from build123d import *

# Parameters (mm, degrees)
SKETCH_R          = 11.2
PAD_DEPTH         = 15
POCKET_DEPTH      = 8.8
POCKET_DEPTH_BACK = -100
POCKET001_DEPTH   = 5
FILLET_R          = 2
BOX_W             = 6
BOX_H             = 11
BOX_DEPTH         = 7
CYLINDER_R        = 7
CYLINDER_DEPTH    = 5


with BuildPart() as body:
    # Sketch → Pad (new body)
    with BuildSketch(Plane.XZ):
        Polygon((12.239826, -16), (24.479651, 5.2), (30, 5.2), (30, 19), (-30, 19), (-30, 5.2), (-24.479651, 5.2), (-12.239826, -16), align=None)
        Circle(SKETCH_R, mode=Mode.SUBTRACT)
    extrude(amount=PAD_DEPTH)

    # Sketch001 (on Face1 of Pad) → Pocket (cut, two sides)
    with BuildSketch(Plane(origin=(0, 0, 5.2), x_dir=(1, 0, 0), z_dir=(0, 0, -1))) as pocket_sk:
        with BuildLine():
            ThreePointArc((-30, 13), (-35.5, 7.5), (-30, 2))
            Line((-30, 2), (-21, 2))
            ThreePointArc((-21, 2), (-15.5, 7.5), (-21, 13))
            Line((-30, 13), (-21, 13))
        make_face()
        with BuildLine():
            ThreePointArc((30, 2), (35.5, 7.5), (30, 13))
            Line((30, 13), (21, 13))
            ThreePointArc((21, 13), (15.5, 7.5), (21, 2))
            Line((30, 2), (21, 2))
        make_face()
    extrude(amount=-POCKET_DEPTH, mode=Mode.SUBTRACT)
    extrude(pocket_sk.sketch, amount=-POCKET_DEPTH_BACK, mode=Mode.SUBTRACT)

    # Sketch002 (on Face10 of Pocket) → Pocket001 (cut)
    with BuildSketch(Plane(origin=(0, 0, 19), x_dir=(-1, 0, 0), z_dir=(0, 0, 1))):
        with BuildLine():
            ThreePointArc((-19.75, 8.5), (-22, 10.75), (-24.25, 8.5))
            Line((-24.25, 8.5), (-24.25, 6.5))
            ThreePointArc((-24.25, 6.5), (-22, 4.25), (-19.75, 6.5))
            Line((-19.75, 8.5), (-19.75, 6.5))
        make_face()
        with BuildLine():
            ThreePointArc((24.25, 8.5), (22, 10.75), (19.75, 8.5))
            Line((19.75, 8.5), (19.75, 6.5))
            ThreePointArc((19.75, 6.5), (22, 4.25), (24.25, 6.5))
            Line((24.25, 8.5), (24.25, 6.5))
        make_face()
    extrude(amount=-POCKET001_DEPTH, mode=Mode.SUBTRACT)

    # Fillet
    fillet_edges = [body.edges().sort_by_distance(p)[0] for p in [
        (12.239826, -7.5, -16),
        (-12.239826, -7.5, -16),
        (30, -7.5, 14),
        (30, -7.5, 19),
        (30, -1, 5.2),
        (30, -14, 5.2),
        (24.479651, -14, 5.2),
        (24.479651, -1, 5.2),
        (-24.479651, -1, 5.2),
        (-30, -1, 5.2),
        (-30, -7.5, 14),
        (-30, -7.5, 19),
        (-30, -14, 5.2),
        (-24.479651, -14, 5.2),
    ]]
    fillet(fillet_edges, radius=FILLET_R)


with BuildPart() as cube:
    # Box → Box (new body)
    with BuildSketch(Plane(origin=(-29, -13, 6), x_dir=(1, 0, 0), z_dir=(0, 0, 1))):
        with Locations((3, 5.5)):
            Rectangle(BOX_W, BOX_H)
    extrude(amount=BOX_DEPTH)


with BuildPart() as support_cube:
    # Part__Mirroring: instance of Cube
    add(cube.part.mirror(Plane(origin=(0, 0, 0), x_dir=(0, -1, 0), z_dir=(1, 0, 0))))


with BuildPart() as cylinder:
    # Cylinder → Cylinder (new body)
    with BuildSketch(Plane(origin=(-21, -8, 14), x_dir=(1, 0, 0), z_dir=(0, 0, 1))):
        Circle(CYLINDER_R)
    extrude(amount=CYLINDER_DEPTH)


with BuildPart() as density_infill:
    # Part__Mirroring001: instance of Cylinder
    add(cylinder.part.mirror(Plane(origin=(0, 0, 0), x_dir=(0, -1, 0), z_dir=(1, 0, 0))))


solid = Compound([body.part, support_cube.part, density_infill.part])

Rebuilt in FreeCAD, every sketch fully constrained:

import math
import FreeCAD as App
import Part
import Sketcher

V = App.Vector
Q = App.Units.Quantity


def edges_at(feature, points):
    """Names of the edges that pass closest to the given points."""
    edges = feature.Shape.Edges
    near = lambda p: min(range(len(edges)), key=lambda i: edges[i].distToShape(Part.Vertex(*p))[0])
    return sorted({f"Edge{near(p) + 1}" for p in points})


def add_polygon(sketch, points):
    """Adds a closed chain of lines whose ends are joined by coincident constraints."""
    first, n = sketch.GeometryCount, len(points)
    for a, b in zip(points, points[1:] + points[:1]):
        sketch.addGeometry(Part.LineSegment(App.Vector(*a, 0), App.Vector(*b, 0)), False)
    for i in range(n):
        sketch.addConstraint(Sketcher.Constraint("Coincident", first + i, 2, first + (i + 1) % n, 1))

doc = App.newDocument("Part")
body = doc.addObject("PartDesign::Body", "Body")

# Sketch on XZ plane
sketch1 = body.newObject("Sketcher::SketchObject", "Sketch")
sketch1.AttachmentSupport = (doc.getObject("XZ_Plane"), [""])
sketch1.MapMode = "FlatFace"
add_polygon(sketch1, [(12, -16), (24, 5), (30, 5), (30, 19), (-30, 19), (-30, 5), (-24, 5), (-12, -16)])  # lines 0-7
sketch1.addGeometry(Part.Circle(V(0, 0, 0), V(0, 0, 1), 11), False)  # 8
sketch1.addConstraint(Sketcher.Constraint("Horizontal", 1))
sketch1.addConstraint(Sketcher.Constraint("Vertical", 2))
sketch1.addConstraint(Sketcher.Constraint("Horizontal", 3))
sketch1.addConstraint(Sketcher.Constraint("Vertical", 4))
sketch1.addConstraint(Sketcher.Constraint("Horizontal", 5))
sketch1.addConstraint(Sketcher.Constraint("Horizontal", 7))
sketch1.addConstraint(Sketcher.Constraint("Coincident", 8, 3, -1, 1))
sketch1.addConstraint(Sketcher.Constraint("Symmetric", 1, 2, 4, 2, -2))
sketch1.addConstraint(Sketcher.Constraint("Equal", 1, 5))
sketch1.addConstraint(Sketcher.Constraint("Equal", 0, 6))
sketch1.addConstraint(Sketcher.Constraint("Diameter", 8, 22.4))
sketch1.addConstraint(Sketcher.Constraint("DistanceX", 3, 2, 3, 1, 60.0))
sketch1.addConstraint(Sketcher.Constraint("Angle", 0, Q("60.000001 deg")))
sketch1.addConstraint(Sketcher.Constraint("DistanceY", 2, 1, 2, 2, 13.8))
sketch1.addConstraint(Sketcher.Constraint("DistanceY", -1, 1, 2, 2, 19.0))
sketch1.addConstraint(Sketcher.Constraint("DistanceY", 6, 2, -1, 1, 16.0))
sketch1.addConstraint(Sketcher.Constraint("DistanceX", 1, 1, 1, 2, 5.520349))
pad1 = body.newObject("PartDesign::Pad", "Pad")
pad1.Profile = sketch1
pad1.Length = 15

# Sketch on XY plane
sketch2 = body.newObject("Sketcher::SketchObject", "Sketch001")
sketch2.AttachmentSupport = (doc.getObject("XY_Plane"), [""])
sketch2.MapMode = "FlatFace"
sketch2.AttachmentOffset = App.Placement(V(0, 0, 5.2), App.Rotation())
sketch2.addGeometry(Part.ArcOfCircle(Part.Circle(V(-30, -8, 0), V(0, 0, 1), 6), math.radians(90), math.radians(270)), False)
sketch2.addGeometry(Part.LineSegment(V(-30, -2, 0), V(-21, -2, 0)), False)
sketch2.addGeometry(Part.ArcOfCircle(Part.Circle(V(-21, -8, 0), V(0, 0, 1), 6), math.radians(-90), math.radians(90)), False)
sketch2.addGeometry(Part.LineSegment(V(-21, -13, 0), V(-30, -13, 0)), False)
sketch2.addGeometry(Part.ArcOfCircle(Part.Circle(V(30, -8, 0), V(0, 0, 1), 6), math.radians(-90), math.radians(90)), False)
sketch2.addGeometry(Part.LineSegment(V(30, -13, 0), V(21, -13, 0)), False)
sketch2.addGeometry(Part.ArcOfCircle(Part.Circle(V(21, -8, 0), V(0, 0, 1), 6), math.radians(90), math.radians(270)), False)
sketch2.addGeometry(Part.LineSegment(V(21, -2, 0), V(30, -2, 0)), False)
sketch2.addConstraint(Sketcher.Constraint("Tangent", 0, 1, 1, 1))
sketch2.addConstraint(Sketcher.Constraint("Tangent", 1, 2, 2, 2))
sketch2.addConstraint(Sketcher.Constraint("Tangent", 2, 1, 3, 1))
sketch2.addConstraint(Sketcher.Constraint("Tangent", 3, 2, 0, 2))
sketch2.addConstraint(Sketcher.Constraint("Tangent", 4, 1, 5, 1))
sketch2.addConstraint(Sketcher.Constraint("Tangent", 5, 2, 6, 2))
sketch2.addConstraint(Sketcher.Constraint("Tangent", 6, 1, 7, 1))
sketch2.addConstraint(Sketcher.Constraint("Tangent", 7, 2, 4, 2))
sketch2.addConstraint(Sketcher.Constraint("Horizontal", 1))
sketch2.addConstraint(Sketcher.Constraint("Horizontal", 3))
sketch2.addConstraint(Sketcher.Constraint("Horizontal", 5))
sketch2.addConstraint(Sketcher.Constraint("Horizontal", 7))
sketch2.addConstraint(Sketcher.Constraint("Equal", 2, 4))
sketch2.addConstraint(Sketcher.Constraint("Symmetric", 0, 3, 4, 3, -2))
sketch2.addConstraint(Sketcher.Constraint("Equal", 3, 5))
sketch2.addConstraint(Sketcher.Constraint("Radius", 0, 5.5))
sketch2.addConstraint(Sketcher.Constraint("DistanceX", 1, 1, 1, 2, 9.0))
sketch2.addConstraint(Sketcher.Constraint("DistanceX", 0, 3, -1, 1, 30.0))
sketch2.addConstraint(Sketcher.Constraint("DistanceY", 0, 1, -1, 1, 2.0))
pocket1 = body.newObject("PartDesign::Pocket", "Pocket")
pocket1.Profile = sketch2
pocket1.Type = "TwoLengths"
pocket1.Length = 8.8
pocket1.Length2 = 100
pocket1.Reversed = True

# Sketch on XY plane
sketch3 = body.newObject("Sketcher::SketchObject", "Sketch002")
sketch3.AttachmentSupport = (doc.getObject("XY_Plane"), [""])
sketch3.MapMode = "FlatFace"
sketch3.AttachmentOffset = App.Placement(V(0, 0, 19), App.Rotation())
sketch3.addGeometry(Part.ArcOfCircle(Part.Circle(V(22, -8.5, 0), V(0, 0, 1), 2.2), math.radians(180), math.radians(360)), False)
sketch3.addGeometry(Part.LineSegment(V(24.2, -8.5, 0), V(24.2, -6.5, 0)), False)
sketch3.addGeometry(Part.ArcOfCircle(Part.Circle(V(22, -6.5, 0), V(0, 0, 1), 2.2), math.radians(0), math.radians(180)), False)
sketch3.addGeometry(Part.LineSegment(V(19.8, -6.5, 0), V(19.8, -8.5, 0)), False)
sketch3.addGeometry(Part.ArcOfCircle(Part.Circle(V(-22, -8.5, 0), V(0, 0, 1), 2.2), math.radians(180), math.radians(360)), False)
sketch3.addGeometry(Part.LineSegment(V(-19.8, -8.5, 0), V(-19.8, -6.5, 0)), False)
sketch3.addGeometry(Part.ArcOfCircle(Part.Circle(V(-22, -6.5, 0), V(0, 0, 1), 2.2), math.radians(0), math.radians(180)), False)
sketch3.addGeometry(Part.LineSegment(V(-24.2, -6.5, 0), V(-24.2, -8.5, 0)), False)
sketch3.addConstraint(Sketcher.Constraint("Tangent", 0, 2, 1, 1))
sketch3.addConstraint(Sketcher.Constraint("Tangent", 1, 2, 2, 1))
sketch3.addConstraint(Sketcher.Constraint("Tangent", 2, 2, 3, 1))
sketch3.addConstraint(Sketcher.Constraint("Tangent", 3, 2, 0, 1))
sketch3.addConstraint(Sketcher.Constraint("Tangent", 4, 2, 5, 1))
sketch3.addConstraint(Sketcher.Constraint("Tangent", 5, 2, 6, 1))
sketch3.addConstraint(Sketcher.Constraint("Tangent", 6, 2, 7, 1))
sketch3.addConstraint(Sketcher.Constraint("Tangent", 7, 2, 4, 1))
sketch3.addConstraint(Sketcher.Constraint("Vertical", 1))
sketch3.addConstraint(Sketcher.Constraint("Vertical", 3))
sketch3.addConstraint(Sketcher.Constraint("Vertical", 5))
sketch3.addConstraint(Sketcher.Constraint("Vertical", 7))
sketch3.addConstraint(Sketcher.Constraint("Equal", 2, 4))
sketch3.addConstraint(Sketcher.Constraint("Symmetric", 0, 3, 4, 3, -2))
sketch3.addConstraint(Sketcher.Constraint("Horizontal", 2, 3, 6, 3))
sketch3.addConstraint(Sketcher.Constraint("DistanceY", 1, 1, 1, 2, 2.0))
sketch3.addConstraint(Sketcher.Constraint("Radius", 0, 2.25))
sketch3.addConstraint(Sketcher.Constraint("DistanceX", -1, 1, 0, 3, 22.0))
sketch3.addConstraint(Sketcher.Constraint("DistanceY", 0, 3, -1, 1, 8.5))
pocket2 = body.newObject("PartDesign::Pocket", "Pocket001")
pocket2.Profile = sketch3
pocket2.Length = 5
doc.recompute()

fillet = body.newObject("PartDesign::Fillet", "Fillet")
fillet.Base = (pocket2, edges_at(pocket2, [
    (12.24, -7.5, -16),
    (-12.24, -7.5, -16),
    (30, -7.5, 14),
    (30, -7.5, 19),
    (30, -1, 5.2),
    (30, -14, 5.2),
    (24.48, -14, 5.2),
    (24.48, -1, 5.2),
    (-24.48, -1, 5.2),
    (-30, -1, 5.2),
    (-30, -7.5, 14),
    (-30, -7.5, 19),
    (-30, -14, 5.2),
    (-24.48, -14, 5.2),
]))
fillet.Radius = 2
body2 = doc.addObject("PartDesign::Body", "Body001")

# Sketch on XY plane
sketch4 = body2.newObject("Sketcher::SketchObject", "Sketch003")
sketch4.AttachmentSupport = (doc.getObject("XY_Plane001"), [""])
sketch4.MapMode = "FlatFace"
sketch4.AttachmentOffset = App.Placement(V(0, 0, 6), App.Rotation())
add_polygon(sketch4, [(-29, -2), (-29, -13), (-23, -13), (-23, -2)])  # lines 0-3
sketch4.addConstraint(Sketcher.Constraint("Vertical", 0))
sketch4.addConstraint(Sketcher.Constraint("Horizontal", 1))
sketch4.addConstraint(Sketcher.Constraint("Vertical", 2))
sketch4.addConstraint(Sketcher.Constraint("Horizontal", 3))
sketch4.addConstraint(Sketcher.Constraint("DistanceX", 1, 1, 1, 2, 6.0))
sketch4.addConstraint(Sketcher.Constraint("DistanceY", 0, 2, 0, 1, 11.0))
sketch4.addConstraint(Sketcher.Constraint("DistanceX", 0, 2, -1, 1, 29.0))
sketch4.addConstraint(Sketcher.Constraint("DistanceY", 0, 2, -1, 1, 13.0))
pad2 = body2.newObject("PartDesign::Pad", "Pad001")
pad2.Profile = sketch4
pad2.Length = 7
body3 = doc.addObject("PartDesign::Body", "Body002")
doc.recompute()

mirroring = doc.addObject("Part::Mirroring", "Mirroring")
mirroring.Source = body2
mirroring.Base = V(0, 0, 0)
mirroring.Normal = V(1, 0, 0)
body3.BaseFeature = mirroring
doc.recompute()
body4 = doc.addObject("PartDesign::Body", "Body003")

# Sketch on XY plane
sketch5 = body4.newObject("Sketcher::SketchObject", "Sketch004")
sketch5.AttachmentSupport = (doc.getObject("XY_Plane003"), [""])
sketch5.MapMode = "FlatFace"
sketch5.AttachmentOffset = App.Placement(V(0, 0, 14), App.Rotation())
sketch5.addGeometry(Part.Circle(V(-21, -8, 0), V(0, 0, 1), 7), False)
sketch5.addConstraint(Sketcher.Constraint("Diameter", 0, 14.0))
sketch5.addConstraint(Sketcher.Constraint("DistanceX", 0, 3, -1, 1, 21.0))
sketch5.addConstraint(Sketcher.Constraint("DistanceY", 0, 3, -1, 1, 8.0))
pad3 = body4.newObject("PartDesign::Pad", "Pad002")
pad3.Profile = sketch5
pad3.Length = 5
body5 = doc.addObject("PartDesign::Body", "Body004")
doc.recompute()

mirroring2 = doc.addObject("Part::Mirroring", "Mirroring001")
mirroring2.Source = body4
mirroring2.Base = V(0, 0, 0)
mirroring2.Normal = V(1, 0, 0)
body5.BaseFeature = mirroring2
doc.recompute()
body2.Visibility = False
body4.Visibility = False
mirroring.Visibility = False
mirroring2.Visibility = False

doc.recompute()
